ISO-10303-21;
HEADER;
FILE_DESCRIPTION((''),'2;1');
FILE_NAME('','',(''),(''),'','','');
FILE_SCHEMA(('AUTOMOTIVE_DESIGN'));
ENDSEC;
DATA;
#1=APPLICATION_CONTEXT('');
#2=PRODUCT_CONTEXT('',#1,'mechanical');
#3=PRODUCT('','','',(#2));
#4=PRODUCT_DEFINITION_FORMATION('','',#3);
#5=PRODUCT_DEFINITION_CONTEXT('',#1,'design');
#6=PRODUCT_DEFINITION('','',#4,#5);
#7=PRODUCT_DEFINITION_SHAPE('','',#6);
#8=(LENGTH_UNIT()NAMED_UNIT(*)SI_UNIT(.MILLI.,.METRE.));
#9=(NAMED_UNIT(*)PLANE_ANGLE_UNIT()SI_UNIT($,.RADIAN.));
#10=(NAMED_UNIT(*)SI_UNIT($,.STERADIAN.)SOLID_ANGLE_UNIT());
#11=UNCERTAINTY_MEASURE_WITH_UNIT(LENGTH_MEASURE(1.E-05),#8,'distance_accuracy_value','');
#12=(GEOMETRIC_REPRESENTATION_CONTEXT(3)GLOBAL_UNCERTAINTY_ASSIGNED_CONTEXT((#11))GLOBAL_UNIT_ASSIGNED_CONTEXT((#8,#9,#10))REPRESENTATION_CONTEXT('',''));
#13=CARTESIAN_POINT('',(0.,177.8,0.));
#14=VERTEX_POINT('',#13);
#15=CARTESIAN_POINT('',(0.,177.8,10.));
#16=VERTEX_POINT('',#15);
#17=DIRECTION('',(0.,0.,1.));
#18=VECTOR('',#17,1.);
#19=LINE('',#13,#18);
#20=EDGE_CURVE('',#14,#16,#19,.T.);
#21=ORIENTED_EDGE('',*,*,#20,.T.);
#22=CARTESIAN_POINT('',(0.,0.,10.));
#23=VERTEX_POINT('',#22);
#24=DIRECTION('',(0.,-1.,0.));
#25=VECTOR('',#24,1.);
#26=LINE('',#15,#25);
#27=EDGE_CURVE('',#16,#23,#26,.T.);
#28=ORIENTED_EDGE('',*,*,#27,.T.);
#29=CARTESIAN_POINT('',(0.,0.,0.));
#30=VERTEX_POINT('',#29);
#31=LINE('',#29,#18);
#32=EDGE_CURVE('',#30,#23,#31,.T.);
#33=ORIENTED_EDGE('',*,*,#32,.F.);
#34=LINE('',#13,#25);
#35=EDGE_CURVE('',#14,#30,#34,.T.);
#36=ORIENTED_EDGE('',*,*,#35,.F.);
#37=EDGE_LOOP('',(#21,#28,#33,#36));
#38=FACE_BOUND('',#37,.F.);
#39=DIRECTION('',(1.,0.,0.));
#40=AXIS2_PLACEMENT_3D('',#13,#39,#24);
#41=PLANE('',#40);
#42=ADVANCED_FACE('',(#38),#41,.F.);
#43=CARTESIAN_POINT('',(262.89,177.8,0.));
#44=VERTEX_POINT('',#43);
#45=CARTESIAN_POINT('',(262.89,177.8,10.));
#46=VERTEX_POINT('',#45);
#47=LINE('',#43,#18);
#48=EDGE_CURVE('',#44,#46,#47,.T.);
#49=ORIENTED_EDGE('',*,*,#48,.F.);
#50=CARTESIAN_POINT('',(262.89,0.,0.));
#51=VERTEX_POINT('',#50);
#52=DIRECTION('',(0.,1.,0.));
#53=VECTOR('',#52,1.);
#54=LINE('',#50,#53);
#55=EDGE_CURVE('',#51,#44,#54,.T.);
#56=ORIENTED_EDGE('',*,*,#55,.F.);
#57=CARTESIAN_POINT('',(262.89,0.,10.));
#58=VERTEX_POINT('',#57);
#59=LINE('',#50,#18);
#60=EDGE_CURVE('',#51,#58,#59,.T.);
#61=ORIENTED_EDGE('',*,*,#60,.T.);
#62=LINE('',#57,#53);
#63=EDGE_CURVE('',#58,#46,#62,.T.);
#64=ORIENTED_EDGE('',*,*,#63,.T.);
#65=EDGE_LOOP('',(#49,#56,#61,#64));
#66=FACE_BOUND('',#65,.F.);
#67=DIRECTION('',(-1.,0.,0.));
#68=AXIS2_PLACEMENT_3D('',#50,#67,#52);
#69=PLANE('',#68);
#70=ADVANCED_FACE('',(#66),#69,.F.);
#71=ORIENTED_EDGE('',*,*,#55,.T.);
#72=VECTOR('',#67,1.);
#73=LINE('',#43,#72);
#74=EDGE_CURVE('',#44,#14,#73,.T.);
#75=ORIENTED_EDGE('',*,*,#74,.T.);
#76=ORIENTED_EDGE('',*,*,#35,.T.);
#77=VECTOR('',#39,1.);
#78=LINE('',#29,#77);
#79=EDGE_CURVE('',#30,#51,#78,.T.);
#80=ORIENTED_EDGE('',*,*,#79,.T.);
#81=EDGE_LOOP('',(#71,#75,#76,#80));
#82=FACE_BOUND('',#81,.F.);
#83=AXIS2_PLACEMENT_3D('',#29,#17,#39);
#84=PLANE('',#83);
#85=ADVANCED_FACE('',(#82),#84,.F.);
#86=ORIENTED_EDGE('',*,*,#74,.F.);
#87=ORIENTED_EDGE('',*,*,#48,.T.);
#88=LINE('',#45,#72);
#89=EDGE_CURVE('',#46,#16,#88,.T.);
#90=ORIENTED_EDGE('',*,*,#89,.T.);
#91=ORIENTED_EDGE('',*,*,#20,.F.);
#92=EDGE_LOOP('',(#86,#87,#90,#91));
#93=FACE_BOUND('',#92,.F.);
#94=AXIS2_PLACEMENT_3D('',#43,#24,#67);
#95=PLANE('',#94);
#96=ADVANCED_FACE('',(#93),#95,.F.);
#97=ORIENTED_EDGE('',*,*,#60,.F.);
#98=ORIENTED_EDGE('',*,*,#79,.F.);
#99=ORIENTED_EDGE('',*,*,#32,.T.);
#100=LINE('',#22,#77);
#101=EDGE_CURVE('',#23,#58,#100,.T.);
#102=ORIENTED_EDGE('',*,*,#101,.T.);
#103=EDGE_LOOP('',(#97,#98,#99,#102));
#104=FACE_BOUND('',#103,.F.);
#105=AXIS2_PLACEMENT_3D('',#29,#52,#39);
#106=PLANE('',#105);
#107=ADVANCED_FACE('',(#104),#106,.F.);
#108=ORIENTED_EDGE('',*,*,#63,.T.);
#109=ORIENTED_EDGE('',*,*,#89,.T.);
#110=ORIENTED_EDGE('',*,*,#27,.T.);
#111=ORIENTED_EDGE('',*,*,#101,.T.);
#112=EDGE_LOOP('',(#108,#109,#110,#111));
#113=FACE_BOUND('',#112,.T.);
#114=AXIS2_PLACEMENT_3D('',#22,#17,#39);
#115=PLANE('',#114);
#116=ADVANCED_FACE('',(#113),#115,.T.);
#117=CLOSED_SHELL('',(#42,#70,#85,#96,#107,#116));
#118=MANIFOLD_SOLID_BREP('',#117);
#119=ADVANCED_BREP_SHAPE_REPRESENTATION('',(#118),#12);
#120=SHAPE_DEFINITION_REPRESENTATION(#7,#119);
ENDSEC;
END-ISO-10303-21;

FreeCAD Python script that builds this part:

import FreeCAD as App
import Part
import Sketcher
Q = App.Units.Quantity


def add_polygon(sketch, points):
    """Adds a closed chain of lines whose ends are joined by coincident constraints."""
    first, n = sketch.GeometryCount, len(points)
    for a, b in zip(points, points[1:] + points[:1]):
        sketch.addGeometry(Part.LineSegment(App.Vector(*a, 0), App.Vector(*b, 0)), False)
    for i in range(n):
        sketch.addConstraint(Sketcher.Constraint("Coincident", first + i, 2, first + (i + 1) % n, 1))

doc = App.newDocument("Part")
body = doc.addObject("PartDesign::Body", "Body")

# Sketch on XY plane
sketch1 = body.newObject("Sketcher::SketchObject", "Sketch")
sketch1.AttachmentSupport = (doc.getObject("XY_Plane"), [""])
sketch1.MapMode = "FlatFace"
add_polygon(sketch1, [(0, 177.8), (0, 0), (262.89, 0), (262.89, 177.8)])  # lines 0-3
sketch1.addConstraint([
    Sketcher.Constraint("Vertical", 0),
    Sketcher.Constraint("Horizontal", 1),
    Sketcher.Constraint("Vertical", 2),
    Sketcher.Constraint("Horizontal", 3),
    Sketcher.Constraint("Coincident", 0, 2, -1, 1),
    Sketcher.Constraint("DistanceY", 0, 2, 0, 1, Q("7 in")),
    Sketcher.Constraint("DistanceX", 1, 1, 1, 2, Q("10.35 in")),
])
pad1 = body.newObject("PartDesign::Pad", "Pad")
pad1.Profile = sketch1
pad1.Length = Q("0.3937008 in")

doc.recompute()
